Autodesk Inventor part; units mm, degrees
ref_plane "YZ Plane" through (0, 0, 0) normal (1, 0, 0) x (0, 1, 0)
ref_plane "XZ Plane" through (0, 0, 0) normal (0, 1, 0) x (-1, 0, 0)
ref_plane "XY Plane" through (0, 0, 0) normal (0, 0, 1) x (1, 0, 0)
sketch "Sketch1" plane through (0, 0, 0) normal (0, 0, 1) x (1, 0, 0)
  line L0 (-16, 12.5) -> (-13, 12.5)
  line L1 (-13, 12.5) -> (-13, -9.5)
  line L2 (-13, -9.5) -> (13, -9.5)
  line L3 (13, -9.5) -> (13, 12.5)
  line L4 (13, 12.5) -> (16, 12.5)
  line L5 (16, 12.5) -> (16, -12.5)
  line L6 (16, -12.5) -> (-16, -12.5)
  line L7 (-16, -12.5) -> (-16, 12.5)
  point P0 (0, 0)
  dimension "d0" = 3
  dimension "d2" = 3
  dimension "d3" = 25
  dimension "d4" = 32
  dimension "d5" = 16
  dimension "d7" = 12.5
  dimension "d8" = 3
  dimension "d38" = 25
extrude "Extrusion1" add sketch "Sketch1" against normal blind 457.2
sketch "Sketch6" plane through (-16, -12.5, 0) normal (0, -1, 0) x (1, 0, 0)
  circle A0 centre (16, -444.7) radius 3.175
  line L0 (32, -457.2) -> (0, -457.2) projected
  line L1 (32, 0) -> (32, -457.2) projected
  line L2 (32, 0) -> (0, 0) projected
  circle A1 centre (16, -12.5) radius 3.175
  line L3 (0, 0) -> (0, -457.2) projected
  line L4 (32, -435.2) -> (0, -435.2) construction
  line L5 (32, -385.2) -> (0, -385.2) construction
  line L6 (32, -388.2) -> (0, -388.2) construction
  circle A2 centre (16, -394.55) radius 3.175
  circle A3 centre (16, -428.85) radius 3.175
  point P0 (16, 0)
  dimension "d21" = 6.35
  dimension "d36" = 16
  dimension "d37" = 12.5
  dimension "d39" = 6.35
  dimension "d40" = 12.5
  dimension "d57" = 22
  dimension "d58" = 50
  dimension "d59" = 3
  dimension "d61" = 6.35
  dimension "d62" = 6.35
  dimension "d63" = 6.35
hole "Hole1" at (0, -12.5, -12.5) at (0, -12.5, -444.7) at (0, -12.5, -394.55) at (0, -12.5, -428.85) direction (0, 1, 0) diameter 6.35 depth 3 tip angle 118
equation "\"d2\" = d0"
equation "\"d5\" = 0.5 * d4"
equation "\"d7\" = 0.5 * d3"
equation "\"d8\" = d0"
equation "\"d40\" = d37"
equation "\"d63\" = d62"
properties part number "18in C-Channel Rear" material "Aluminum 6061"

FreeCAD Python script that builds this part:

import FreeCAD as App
import Part
import Sketcher

doc = App.newDocument("Part")
params = doc.addObject("Spreadsheet::Sheet", "Params")
for row, (alias, value) in enumerate([
    ("sketch1_width", "3 mm"),
    ("sketch1_width2", "32 mm"),
    ("sketch1_height", "25 mm"),
    ("pad1_length", "457.2 mm"),
    ("sketch2_diameter", "6.35 mm"),
    ("hole_diameter", "6.35 mm"),
    ("hole_depth", "3 mm"),
], start=1):
    params.set(f"A{row}", alias)
    params.set(f"B{row}", "=" + value)
    params.setAlias(f"B{row}", alias)

body = doc.addObject("PartDesign::Body", "Body")

# Sketch on XY plane
sketch1 = body.newObject("Sketcher::SketchObject", "Sketch")
sketch1.AttachmentSupport = (doc.getObject("XY_Plane"), [""])
sketch1.MapMode = "FlatFace"
sketch1.addGeometry([
    Part.LineSegment(App.Vector(-13, 12.5, 0), App.Vector(-16, 12.5, 0)),  # 0
    Part.LineSegment(App.Vector(-16, 12.5, 0), App.Vector(-16, -12.5, 0)),  # 1
    Part.LineSegment(App.Vector(-16, -12.5, 0), App.Vector(16, -12.5, 0)),  # 2
    Part.LineSegment(App.Vector(16, -12.5, 0), App.Vector(16, 12.5, 0)),  # 3
    Part.LineSegment(App.Vector(16, 12.5, 0), App.Vector(13, 12.5, 0)),  # 4
    Part.LineSegment(App.Vector(13, 12.5, 0), App.Vector(13, -9.5, 0)),  # 5
    Part.LineSegment(App.Vector(13, -9.5, 0), App.Vector(-13, -9.5, 0)),  # 6
    Part.LineSegment(App.Vector(-13, -9.5, 0), App.Vector(-13, 12.5, 0)),  # 7
], False)
sketch1.addConstraint([
    Sketcher.Constraint("Coincident", 0, 2, 1, 1),
    Sketcher.Constraint("Coincident", 1, 2, 2, 1),
    Sketcher.Constraint("Coincident", 2, 2, 3, 1),
    Sketcher.Constraint("Coincident", 3, 2, 4, 1),
    Sketcher.Constraint("Coincident", 4, 2, 5, 1),
    Sketcher.Constraint("Coincident", 5, 2, 6, 1),
    Sketcher.Constraint("Coincident", 6, 2, 7, 1),
    Sketcher.Constraint("Coincident", 7, 2, 0, 1),
    Sketcher.Constraint("Horizontal", 0),
    Sketcher.Constraint("Vertical", 1),
    Sketcher.Constraint("Horizontal", 2),
    Sketcher.Constraint("Vertical", 3),
    Sketcher.Constraint("Horizontal", 4),
    Sketcher.Constraint("Vertical", 5),
    Sketcher.Constraint("Horizontal", 6),
    Sketcher.Constraint("Vertical", 7),
    Sketcher.Constraint("Symmetric", 0, 2, 2, 2, -1, 1),
    Sketcher.Constraint("Symmetric", 4, 2, 7, 2, -2),
    Sketcher.Constraint("DistanceX", 0, 2, 0, 1, 3.0),
    Sketcher.Constraint("DistanceX", 2, 1, 2, 2, 32.0),
    Sketcher.Constraint("DistanceY", 1, 2, 1, 1, 25.0),
    Sketcher.Constraint("DistanceY", 2, 2, 5, 2, 3.0),
])
sketch1.setExpression("Constraints[18]", "Params.sketch1_width")
sketch1.setExpression("Constraints[19]", "Params.sketch1_width2")
sketch1.setExpression("Constraints[20]", "Params.sketch1_height")
pad1 = body.newObject("PartDesign::Pad", "Pad")
pad1.Profile = sketch1
pad1.setExpression("Length", "Params.pad1_length")
pad1.Reversed = True

# Sketch on XZ plane
sketch2 = body.newObject("Sketcher::SketchObject", "Sketch001")
sketch2.AttachmentSupport = (doc.getObject("XZ_Plane"), [""])
sketch2.MapMode = "FlatFace"
sketch2.AttachmentOffset = App.Placement(App.Vector(0, 0, 12.5), App.Rotation())
sketch2.addGeometry([
    Part.Circle(App.Vector(0, -12.5, 0), App.Vector(0, 0, 1), 3.2),
    Part.Circle(App.Vector(0, -444.7, 0), App.Vector(0, 0, 1), 3.2),
    Part.Circle(App.Vector(0, -394.6, 0), App.Vector(0, 0, 1), 3.2),
    Part.Circle(App.Vector(0, -428.9, 0), App.Vector(0, 0, 1), 3.2),
], False)
sketch2.addConstraint([
    Sketcher.Constraint("Equal", 0, 1),
    Sketcher.Constraint("Equal", 1, 2),
    Sketcher.Constraint("Equal", 2, 3),
    Sketcher.Constraint("PointOnObject", 0, 3, -2),
    Sketcher.Constraint("PointOnObject", 1, 3, -2),
    Sketcher.Constraint("PointOnObject", 2, 3, -2),
    Sketcher.Constraint("PointOnObject", 3, 3, -2),
    Sketcher.Constraint("Diameter", 0, 6.35),
    Sketcher.Constraint("DistanceY", 0, 3, -1, 1, 12.5),
    Sketcher.Constraint("DistanceY", 1, 3, -1, 1, 444.7),
    Sketcher.Constraint("DistanceY", 3, 3, 2, 3, 34.3),
    Sketcher.Constraint("DistanceY", 2, 3, -1, 1, 394.55),
])
sketch2.setExpression("Constraints[7]", "Params.sketch2_diameter")
doc.recompute()
hole = body.newObject("PartDesign::Hole", "Hole")
hole.Profile = sketch2
hole.ThreadType = "None"
hole.setExpression("Diameter", "Params.hole_diameter")
hole.DepthType = "Dimension"
hole.setExpression("Depth", "Params.hole_depth")
hole.DrillPoint = "Angled"
hole.DrillPointAngle = 118

doc.recompute()
